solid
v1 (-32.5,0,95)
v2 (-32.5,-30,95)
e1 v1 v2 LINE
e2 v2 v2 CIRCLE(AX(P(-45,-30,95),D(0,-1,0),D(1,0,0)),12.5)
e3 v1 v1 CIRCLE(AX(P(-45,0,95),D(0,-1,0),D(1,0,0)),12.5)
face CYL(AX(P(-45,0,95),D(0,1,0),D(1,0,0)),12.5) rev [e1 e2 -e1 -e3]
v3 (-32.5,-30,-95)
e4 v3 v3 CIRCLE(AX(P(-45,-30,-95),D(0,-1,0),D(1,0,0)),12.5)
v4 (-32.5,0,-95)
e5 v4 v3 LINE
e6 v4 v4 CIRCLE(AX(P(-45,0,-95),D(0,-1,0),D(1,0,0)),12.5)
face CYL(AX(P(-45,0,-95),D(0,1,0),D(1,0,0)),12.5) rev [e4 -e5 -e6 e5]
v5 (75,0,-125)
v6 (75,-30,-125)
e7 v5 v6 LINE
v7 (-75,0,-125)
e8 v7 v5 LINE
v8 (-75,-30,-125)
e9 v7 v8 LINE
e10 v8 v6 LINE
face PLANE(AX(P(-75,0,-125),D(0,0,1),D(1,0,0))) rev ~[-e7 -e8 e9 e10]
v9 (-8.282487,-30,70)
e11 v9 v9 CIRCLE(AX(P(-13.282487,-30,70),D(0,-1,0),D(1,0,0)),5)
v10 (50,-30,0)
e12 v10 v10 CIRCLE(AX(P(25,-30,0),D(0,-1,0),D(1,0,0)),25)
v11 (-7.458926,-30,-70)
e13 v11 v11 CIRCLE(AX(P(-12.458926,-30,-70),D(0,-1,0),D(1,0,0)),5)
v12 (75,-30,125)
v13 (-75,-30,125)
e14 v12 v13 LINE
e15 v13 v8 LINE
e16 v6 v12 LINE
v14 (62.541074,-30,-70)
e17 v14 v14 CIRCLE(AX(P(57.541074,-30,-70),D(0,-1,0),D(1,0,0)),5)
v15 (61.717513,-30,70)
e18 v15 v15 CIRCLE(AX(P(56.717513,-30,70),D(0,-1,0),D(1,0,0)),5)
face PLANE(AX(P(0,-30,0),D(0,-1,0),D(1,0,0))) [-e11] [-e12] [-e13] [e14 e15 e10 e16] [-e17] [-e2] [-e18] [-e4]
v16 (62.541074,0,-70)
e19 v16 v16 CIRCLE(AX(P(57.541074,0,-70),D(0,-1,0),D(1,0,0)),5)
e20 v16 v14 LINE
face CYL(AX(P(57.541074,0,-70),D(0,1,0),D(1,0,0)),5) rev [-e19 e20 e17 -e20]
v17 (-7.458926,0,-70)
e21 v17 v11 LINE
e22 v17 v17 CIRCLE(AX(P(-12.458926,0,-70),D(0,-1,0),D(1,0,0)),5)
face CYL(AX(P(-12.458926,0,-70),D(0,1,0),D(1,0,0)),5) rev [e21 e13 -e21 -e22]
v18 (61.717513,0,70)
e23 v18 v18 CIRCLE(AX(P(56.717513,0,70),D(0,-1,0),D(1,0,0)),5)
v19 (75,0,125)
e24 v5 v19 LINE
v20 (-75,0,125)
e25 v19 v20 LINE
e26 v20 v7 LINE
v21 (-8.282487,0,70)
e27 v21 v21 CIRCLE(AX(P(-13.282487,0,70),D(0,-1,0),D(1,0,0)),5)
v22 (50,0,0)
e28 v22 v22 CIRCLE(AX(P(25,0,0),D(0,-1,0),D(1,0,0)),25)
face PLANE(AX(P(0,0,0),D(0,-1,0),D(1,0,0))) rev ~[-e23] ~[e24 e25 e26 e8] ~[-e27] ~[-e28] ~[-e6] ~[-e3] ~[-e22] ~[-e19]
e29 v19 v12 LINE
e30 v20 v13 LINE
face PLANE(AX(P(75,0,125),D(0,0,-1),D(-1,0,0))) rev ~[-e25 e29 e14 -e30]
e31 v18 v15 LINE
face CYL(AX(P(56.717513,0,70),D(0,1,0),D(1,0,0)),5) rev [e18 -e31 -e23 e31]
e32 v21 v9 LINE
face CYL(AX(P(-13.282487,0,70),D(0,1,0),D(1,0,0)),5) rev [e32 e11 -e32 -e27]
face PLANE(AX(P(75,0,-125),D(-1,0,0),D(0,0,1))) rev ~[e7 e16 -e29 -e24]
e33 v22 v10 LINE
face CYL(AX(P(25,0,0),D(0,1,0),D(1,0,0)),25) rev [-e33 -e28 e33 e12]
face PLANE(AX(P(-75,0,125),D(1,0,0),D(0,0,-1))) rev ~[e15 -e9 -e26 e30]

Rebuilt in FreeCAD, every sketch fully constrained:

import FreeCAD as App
import Part
import Sketcher
from FreeCAD import Vector
Q = App.Units.Quantity


def add_polygon(sketch, points):
    """Adds a closed chain of lines whose ends are joined by coincident constraints."""
    first, n = sketch.GeometryCount, len(points)
    for a, b in zip(points, points[1:] + points[:1]):
        sketch.addGeometry(Part.LineSegment(App.Vector(*a, 0), App.Vector(*b, 0)), False)
    for i in range(n):
        sketch.addConstraint(Sketcher.Constraint("Coincident", first + i, 2, first + (i + 1) % n, 1))

doc = App.newDocument("Part")
body = doc.addObject("PartDesign::Body", "Body")

# Sketch on XZ plane
sketch1 = doc.addObject("Sketcher::SketchObject", "Sketch")
body.addObject(sketch1)
sketch1.AttachmentSupport = (doc.XZ_Plane, [""])
sketch1.MapMode = "FlatFace"
add_polygon(sketch1, [(75, 125), (-75, 125), (-75, -125), (75, -125)])  # lines 0-3
sketch1.addGeometry(Part.Circle(Vector(-45, -95, 0), Vector(0, 0, 1), 12), False)  # 4
sketch1.addGeometry(Part.Circle(Vector(-12, -70, 0), Vector(0, 0, 1), 5), False)  # 5
sketch1.addGeometry(Part.Circle(Vector(58, -70, 0), Vector(0, 0, 1), 5), False)  # 6
sketch1.addGeometry(Part.Circle(Vector(-45, 95, 0), Vector(0, 0, 1), 12), False)  # 7
sketch1.addGeometry(Part.Circle(Vector(-13, 70, 0), Vector(0, 0, 1), 5), False)  # 8
sketch1.addGeometry(Part.Circle(Vector(25, 0, 0), Vector(0, 0, 1), 25), False)  # 9
sketch1.addGeometry(Part.Circle(Vector(57, 70, 0), Vector(0, 0, 1), 5), False)  # 10
sketch1.addConstraint([
    Sketcher.Constraint("Horizontal", 0),
    Sketcher.Constraint("Vertical", 1),
    Sketcher.Constraint("Horizontal", 2),
    Sketcher.Constraint("Vertical", 3),
    Sketcher.Constraint("Equal", 5, 6),
    Sketcher.Constraint("Equal", 4, 7),
    Sketcher.Constraint("Equal", 6, 8),
    Sketcher.Constraint("Equal", 8, 10),
    Sketcher.Constraint("Symmetric", 0, 2, 2, 2, -1, 1),
    Sketcher.Constraint("Symmetric", 4, 3, 7, 3, -1),
    Sketcher.Constraint("PointOnObject", 9, 3, -1),
    Sketcher.Constraint("Horizontal", 5, 3, 6, 3),
    Sketcher.Constraint("Horizontal", 8, 3, 10, 3),
    Sketcher.Constraint("Diameter", 4, Q("25 mm")),
    Sketcher.Constraint("Diameter", 5, Q("10 mm")),
    Sketcher.Constraint("Diameter", 9, Q("50 mm")),
    Sketcher.Constraint("DistanceX", 0, 2, 0, 1, Q("150 mm")),
    Sketcher.Constraint("DistanceY", 1, 2, 1, 1, Q("250 mm")),
    Sketcher.Constraint("DistanceX", 4, 3, -1, 1, Q("45 mm")),
    Sketcher.Constraint("DistanceY", 4, 3, -1, 1, Q("95 mm")),
    Sketcher.Constraint("DistanceY", 5, 3, -1, 1, Q("70 mm")),
    Sketcher.Constraint("DistanceY", -1, 1, 8, 3, Q("70 mm")),
    Sketcher.Constraint("DistanceX", -1, 1, 9, 3, Q("25 mm")),
    Sketcher.Constraint("DistanceX", 5, 3, 6, 3, Q("70 mm")),
    Sketcher.Constraint("DistanceX", 8, 3, 10, 3, Q("70 mm")),
    Sketcher.Constraint("DistanceX", 8, 3, 5, 3, Q("0.823561 mm")),
    Sketcher.Constraint("DistanceX", 5, 3, -1, 1, Q("12.458926 mm")),
])
pad1 = doc.addObject("PartDesign::Pad", "Pad")
body.addObject(pad1)
pad1.Profile = sketch1
pad1.Length = 30

doc.recompute()
